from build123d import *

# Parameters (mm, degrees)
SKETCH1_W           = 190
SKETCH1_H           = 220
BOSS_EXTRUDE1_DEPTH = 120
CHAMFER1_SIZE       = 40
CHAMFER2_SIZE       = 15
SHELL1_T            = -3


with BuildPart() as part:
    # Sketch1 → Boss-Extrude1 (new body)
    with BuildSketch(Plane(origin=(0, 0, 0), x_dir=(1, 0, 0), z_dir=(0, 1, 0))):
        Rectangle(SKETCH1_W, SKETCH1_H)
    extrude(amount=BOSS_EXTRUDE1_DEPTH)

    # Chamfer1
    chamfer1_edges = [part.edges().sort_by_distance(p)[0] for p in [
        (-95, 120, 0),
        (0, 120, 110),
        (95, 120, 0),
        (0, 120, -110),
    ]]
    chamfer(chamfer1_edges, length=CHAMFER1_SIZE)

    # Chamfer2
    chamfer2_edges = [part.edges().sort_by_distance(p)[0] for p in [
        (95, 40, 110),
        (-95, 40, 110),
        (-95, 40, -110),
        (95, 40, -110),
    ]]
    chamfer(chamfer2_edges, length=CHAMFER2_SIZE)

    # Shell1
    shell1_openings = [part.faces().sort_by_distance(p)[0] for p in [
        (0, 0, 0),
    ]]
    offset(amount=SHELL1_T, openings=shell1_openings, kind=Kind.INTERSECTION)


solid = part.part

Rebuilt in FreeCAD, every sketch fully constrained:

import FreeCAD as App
import Part
import Sketcher


def edges_at(feature, points):
    """Names of the edges that pass closest to the given points."""
    edges = feature.Shape.Edges
    near = lambda p: min(range(len(edges)), key=lambda i: edges[i].distToShape(Part.Vertex(*p))[0])
    return sorted({f"Edge{near(p) + 1}" for p in points})


def faces_at(feature, points):
    """Names of the faces that lie closest to the given points."""
    faces = feature.Shape.Faces
    near = lambda p: min(range(len(faces)), key=lambda i: faces[i].distToShape(Part.Vertex(*p))[0])
    return sorted({f"Face{near(p) + 1}" for p in points})

doc = App.newDocument("Part")
body = doc.addObject("PartDesign::Body", "Body")

sketch1 = doc.addObject("Sketcher::SketchObject", "Sketch")
body.addObject(sketch1)
sketch1.AttachmentSupport = (doc.XZ_Plane, [""])
sketch1.MapMode = "FlatFace"
sketch1.addGeometry(Part.LineSegment(App.Vector(-95, -110, 0), App.Vector(-95, 110, 0)), False)
sketch1.addGeometry(Part.LineSegment(App.Vector(-95, 110, 0), App.Vector(95, 110, 0)), False)
sketch1.addGeometry(Part.LineSegment(App.Vector(95, 110, 0), App.Vector(95, -110, 0)), False)
sketch1.addGeometry(Part.LineSegment(App.Vector(95, -110, 0), App.Vector(-95, -110, 0)), False)
sketch1.addConstraint(Sketcher.Constraint("Coincident", 0, 2, 1, 1))
sketch1.addConstraint(Sketcher.Constraint("Coincident", 1, 2, 2, 1))
sketch1.addConstraint(Sketcher.Constraint("Coincident", 2, 2, 3, 1))
sketch1.addConstraint(Sketcher.Constraint("Coincident", 3, 2, 0, 1))
sketch1.addConstraint(Sketcher.Constraint("Vertical", 0))
sketch1.addConstraint(Sketcher.Constraint("Horizontal", 1))
sketch1.addConstraint(Sketcher.Constraint("Vertical", 2))
sketch1.addConstraint(Sketcher.Constraint("Horizontal", 3))
sketch1.addConstraint(Sketcher.Constraint("Symmetric", 0, 2, 2, 2, -1, 1))
sketch1.addConstraint(Sketcher.Constraint("DistanceX", 1, 1, 1, 2, 190.0))
sketch1.addConstraint(Sketcher.Constraint("DistanceY", 0, 1, 0, 2, 220.0))
pad1 = doc.addObject("PartDesign::Pad", "Pad")
body.addObject(pad1)
pad1.Profile = sketch1
pad1.Length = 120
pad1.Reversed = True
doc.recompute()

chamfer = doc.addObject("PartDesign::Chamfer", "Chamfer")
body.addObject(chamfer)
chamfer.Base = (pad1, edges_at(pad1, [
    (-95, 120, 0),
    (0, 120, 110),
    (95, 120, 0),
    (0, 120, -110),
]))
chamfer.Size = 40
doc.recompute()

chamfer2 = doc.addObject("PartDesign::Chamfer", "Chamfer001")
body.addObject(chamfer2)
chamfer2.Base = (chamfer, edges_at(chamfer, [
    (95, 40, 110),
    (-95, 40, 110),
    (-95, 40, -110),
    (95, 40, -110),
]))
chamfer2.Size = 15
doc.recompute()

thickness = doc.addObject("PartDesign::Thickness", "Thickness")
body.addObject(thickness)
thickness.Base = (chamfer2, faces_at(chamfer2, [(0, 0, 0)]))
thickness.Value = 3
thickness.Reversed = True
thickness.Join = "Intersection"

doc.recompute()
